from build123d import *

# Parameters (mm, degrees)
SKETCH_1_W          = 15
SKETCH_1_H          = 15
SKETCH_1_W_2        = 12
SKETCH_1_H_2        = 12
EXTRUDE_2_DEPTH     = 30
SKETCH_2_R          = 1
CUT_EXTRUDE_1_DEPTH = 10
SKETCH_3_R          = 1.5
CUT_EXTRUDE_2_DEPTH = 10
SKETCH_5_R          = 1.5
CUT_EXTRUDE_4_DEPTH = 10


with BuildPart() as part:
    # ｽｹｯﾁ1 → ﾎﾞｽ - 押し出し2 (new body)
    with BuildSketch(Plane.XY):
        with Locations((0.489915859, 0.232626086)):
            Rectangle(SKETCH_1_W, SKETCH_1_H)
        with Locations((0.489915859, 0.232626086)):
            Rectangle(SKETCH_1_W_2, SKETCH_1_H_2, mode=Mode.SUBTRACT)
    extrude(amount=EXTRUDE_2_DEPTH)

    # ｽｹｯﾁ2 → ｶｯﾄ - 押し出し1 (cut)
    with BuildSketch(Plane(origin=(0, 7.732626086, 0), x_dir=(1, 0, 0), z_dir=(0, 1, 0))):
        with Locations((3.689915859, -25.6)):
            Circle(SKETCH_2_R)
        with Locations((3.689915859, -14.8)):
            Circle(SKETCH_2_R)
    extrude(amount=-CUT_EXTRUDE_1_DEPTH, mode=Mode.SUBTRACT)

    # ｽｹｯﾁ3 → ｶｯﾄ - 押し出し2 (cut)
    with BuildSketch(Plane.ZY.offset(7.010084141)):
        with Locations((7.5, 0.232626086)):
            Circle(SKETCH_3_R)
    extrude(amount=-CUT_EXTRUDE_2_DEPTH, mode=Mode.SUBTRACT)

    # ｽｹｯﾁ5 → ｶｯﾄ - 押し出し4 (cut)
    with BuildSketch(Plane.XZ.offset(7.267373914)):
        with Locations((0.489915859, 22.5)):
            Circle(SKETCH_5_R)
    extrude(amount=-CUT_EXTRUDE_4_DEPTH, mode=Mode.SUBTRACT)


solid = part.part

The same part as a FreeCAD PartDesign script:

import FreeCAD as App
import Part
import Sketcher
Q = App.Units.Quantity

doc = App.newDocument("Part")
body = doc.addObject("PartDesign::Body", "Body")

# Sketch on XY plane
sketch1 = doc.addObject("Sketcher::SketchObject", "Sketch")
body.addObject(sketch1)
sketch1.AttachmentSupport = (doc.XY_Plane, [""])
sketch1.MapMode = "FlatFace"
sketch1.addGeometry([
    Part.LineSegment(App.Vector(-7, 8, 0), App.Vector(-7, -7, 0)),  # 0
    Part.LineSegment(App.Vector(-7, -7, 0), App.Vector(8, -7, 0)),  # 1
    Part.LineSegment(App.Vector(8, -7, 0), App.Vector(8, 8, 0)),  # 2
    Part.LineSegment(App.Vector(8, 8, 0), App.Vector(-7, 8, 0)),  # 3
    Part.LineSegment(App.Vector(6, -6, 0), App.Vector(-6, -6, 0)),  # 4
    Part.LineSegment(App.Vector(-6, -6, 0), App.Vector(-6, 6, 0)),  # 5
    Part.LineSegment(App.Vector(-6, 6, 0), App.Vector(6, 6, 0)),  # 6
    Part.LineSegment(App.Vector(6, 6, 0), App.Vector(6, -6, 0)),  # 7
], False)
sketch1.addConstraint([
    Sketcher.Constraint("Coincident", 0, 2, 1, 1),
    Sketcher.Constraint("Coincident", 1, 2, 2, 1),
    Sketcher.Constraint("Coincident", 2, 2, 3, 1),
    Sketcher.Constraint("Coincident", 3, 2, 0, 1),
    Sketcher.Constraint("Coincident", 4, 2, 5, 1),
    Sketcher.Constraint("Coincident", 5, 2, 6, 1),
    Sketcher.Constraint("Coincident", 6, 2, 7, 1),
    Sketcher.Constraint("Coincident", 7, 2, 4, 1),
    Sketcher.Constraint("Vertical", 0),
    Sketcher.Constraint("Horizontal", 1),
    Sketcher.Constraint("Vertical", 2),
    Sketcher.Constraint("Horizontal", 3),
    Sketcher.Constraint("Horizontal", 4),
    Sketcher.Constraint("Vertical", 5),
    Sketcher.Constraint("Horizontal", 6),
    Sketcher.Constraint("Vertical", 7),
    Sketcher.Constraint("Equal", 3, 0),
    Sketcher.Constraint("Equal", 6, 5),
    Sketcher.Constraint("DistanceX", 1, 1, 1, 2, Q("15 mm")),
    Sketcher.Constraint("DistanceX", 4, 2, 4, 1, Q("12 mm")),
    Sketcher.Constraint("DistanceX", 0, 2, 4, 2, Q("1.5 mm")),
    Sketcher.Constraint("DistanceY", 0, 2, 4, 2, Q("1.5 mm")),
    Sketcher.Constraint("DistanceX", 0, 2, -1, 1, Q("7.010084 mm")),
    Sketcher.Constraint("DistanceY", 0, 2, -1, 1, Q("7.267374 mm")),
])
pad1 = doc.addObject("PartDesign::Pad", "Pad")
body.addObject(pad1)
pad1.Profile = sketch1
pad1.Length = 30

# Sketch on XZ plane
sketch2 = doc.addObject("Sketcher::SketchObject", "Sketch001")
body.addObject(sketch2)
sketch2.AttachmentSupport = (doc.XZ_Plane, [""])
sketch2.MapMode = "FlatFace"
sketch2.AttachmentOffset = App.Placement(App.Vector(0, 0, -7.732626), App.Rotation())
sketch2.addGeometry([
    Part.Circle(App.Vector(3.7, 25.6, 0), App.Vector(0, 0, 1), 1),
    Part.Circle(App.Vector(3.7, 14.8, 0), App.Vector(0, 0, 1), 1),
], False)
sketch2.addConstraint([
    Sketcher.Constraint("Equal", 0, 1),
    Sketcher.Constraint("Vertical", 0, 3, 1, 3),
    Sketcher.Constraint("Diameter", 0, Q("2 mm")),
    Sketcher.Constraint("DistanceY", -1, 1, 0, 3, Q("25.6 mm")),
    Sketcher.Constraint("DistanceY", -1, 1, 1, 3, Q("14.8 mm")),
    Sketcher.Constraint("DistanceX", -1, 1, 0, 3, Q("3.689916 mm")),
])
pocket1 = doc.addObject("PartDesign::Pocket", "Pocket")
body.addObject(pocket1)
pocket1.Profile = sketch2
pocket1.Length = 10
pocket1.Reversed = True

# Sketch on YZ plane
sketch3 = doc.addObject("Sketcher::SketchObject", "Sketch002")
body.addObject(sketch3)
sketch3.AttachmentSupport = (doc.YZ_Plane, [""])
sketch3.MapMode = "FlatFace"
sketch3.AttachmentOffset = App.Placement(App.Vector(0, 0, -7.010084), App.Rotation())
sketch3.addGeometry(Part.Circle(App.Vector(0.2, 7.5, 0), App.Vector(0, 0, 1), 1.5), False)
sketch3.addConstraint([
    Sketcher.Constraint("Diameter", 0, Q("3 mm")),
    Sketcher.Constraint("DistanceY", -1, 1, 0, 3, Q("7.5 mm")),
    Sketcher.Constraint("DistanceX", -1, 1, 0, 3, Q("0.232626 mm")),
])
pocket2 = doc.addObject("PartDesign::Pocket", "Pocket001")
body.addObject(pocket2)
pocket2.Profile = sketch3
pocket2.Length = 10
pocket2.Reversed = True

# Sketch on XZ plane
sketch4 = doc.addObject("Sketcher::SketchObject", "Sketch003")
body.addObject(sketch4)
sketch4.AttachmentSupport = (doc.XZ_Plane, [""])
sketch4.MapMode = "FlatFace"
sketch4.AttachmentOffset = App.Placement(App.Vector(0, 0, 7.267374), App.Rotation())
sketch4.addGeometry(Part.Circle(App.Vector(0.5, 22.5, 0), App.Vector(0, 0, 1), 1.5), False)
sketch4.addConstraint([
    Sketcher.Constraint("Diameter", 0, Q("3 mm")),
    Sketcher.Constraint("DistanceY", -1, 1, 0, 3, Q("22.5 mm")),
    Sketcher.Constraint("DistanceX", -1, 1, 0, 3, Q("0.489916 mm")),
])
pocket3 = doc.addObject("PartDesign::Pocket", "Pocket002")
body.addObject(pocket3)
pocket3.Profile = sketch4
pocket3.Length = 10

doc.recompute()
